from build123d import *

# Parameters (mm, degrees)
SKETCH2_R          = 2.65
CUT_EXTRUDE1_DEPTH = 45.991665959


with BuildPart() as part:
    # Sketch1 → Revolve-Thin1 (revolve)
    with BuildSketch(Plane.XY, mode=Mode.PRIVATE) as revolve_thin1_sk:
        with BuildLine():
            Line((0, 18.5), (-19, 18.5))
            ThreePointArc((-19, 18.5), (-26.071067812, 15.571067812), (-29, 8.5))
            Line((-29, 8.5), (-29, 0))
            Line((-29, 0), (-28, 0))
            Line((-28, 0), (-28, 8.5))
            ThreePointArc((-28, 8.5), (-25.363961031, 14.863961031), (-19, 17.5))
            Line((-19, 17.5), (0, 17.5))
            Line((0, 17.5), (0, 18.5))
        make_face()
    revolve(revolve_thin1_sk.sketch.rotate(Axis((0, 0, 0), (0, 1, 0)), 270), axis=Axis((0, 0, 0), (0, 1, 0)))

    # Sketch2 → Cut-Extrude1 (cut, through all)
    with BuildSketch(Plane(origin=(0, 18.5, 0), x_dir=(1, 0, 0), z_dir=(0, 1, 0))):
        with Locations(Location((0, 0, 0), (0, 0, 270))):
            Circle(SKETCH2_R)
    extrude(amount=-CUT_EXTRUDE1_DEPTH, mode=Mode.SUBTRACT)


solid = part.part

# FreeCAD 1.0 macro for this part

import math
import FreeCAD as App
import Part
import Sketcher

doc = App.newDocument("Part")
params = doc.addObject("Spreadsheet::Sheet", "Params")
for row, (alias, value) in enumerate([
    ("sketch1_radius", "10 mm"),
    ("sketch1_radius2", "9 mm"),
    ("sketch1_width", "19 mm"),
    ("sketch1_height", "8.5 mm"),
    ("revolution_angle", "360 deg"),
    ("sketch2_diameter", "5.3 mm"),
], start=1):
    params.set(f"A{row}", alias)
    params.set(f"B{row}", "=" + value)
    params.setAlias(f"B{row}", alias)

body = doc.addObject("PartDesign::Body", "Body")

sketch1 = body.newObject("Sketcher::SketchObject", "Sketch")
sketch1.AttachmentSupport = (doc.getObject("XY_Plane"), [""])
sketch1.MapMode = "FlatFace"
sketch1.addGeometry(Part.LineSegment(App.Vector(0, 18.5, 0), App.Vector(-19, 18.5, 0)), False)
sketch1.addGeometry(Part.ArcOfCircle(Part.Circle(App.Vector(-19, 8.5, 0), App.Vector(0, 0, 1), 10), math.radians(90), math.radians(180)), False)
sketch1.addGeometry(Part.LineSegment(App.Vector(-29, 8.5, 0), App.Vector(-29, 0, 0)), False)
sketch1.addGeometry(Part.LineSegment(App.Vector(-29, 0, 0), App.Vector(-28, 0, 0)), False)
sketch1.addGeometry(Part.LineSegment(App.Vector(-28, 0, 0), App.Vector(-28, 8.5, 0)), False)
sketch1.addGeometry(Part.ArcOfCircle(Part.Circle(App.Vector(-19, 8.5, 0), App.Vector(0, 0, 1), 9), math.radians(90), math.radians(180)), False)
sketch1.addGeometry(Part.LineSegment(App.Vector(-19, 17.5, 0), App.Vector(0, 17.5, 0)), False)
sketch1.addGeometry(Part.LineSegment(App.Vector(0, 17.5, 0), App.Vector(0, 18.5, 0)), False)
sketch1.addConstraint(Sketcher.Constraint("Tangent", 0, 2, 1, 1))
sketch1.addConstraint(Sketcher.Constraint("Tangent", 1, 2, 2, 1))
sketch1.addConstraint(Sketcher.Constraint("Coincident", 2, 2, 3, 1))
sketch1.addConstraint(Sketcher.Constraint("Coincident", 3, 2, 4, 1))
sketch1.addConstraint(Sketcher.Constraint("Tangent", 4, 2, 5, 2))
sketch1.addConstraint(Sketcher.Constraint("Tangent", 5, 1, 6, 1))
sketch1.addConstraint(Sketcher.Constraint("Coincident", 6, 2, 7, 1))
sketch1.addConstraint(Sketcher.Constraint("Coincident", 7, 2, 0, 1))
sketch1.addConstraint(Sketcher.Constraint("Horizontal", 0))
sketch1.addConstraint(Sketcher.Constraint("Vertical", 2))
sketch1.addConstraint(Sketcher.Constraint("Horizontal", 3))
sketch1.addConstraint(Sketcher.Constraint("Vertical", 4))
sketch1.addConstraint(Sketcher.Constraint("Horizontal", 6))
sketch1.addConstraint(Sketcher.Constraint("Vertical", 7))
sketch1.addConstraint(Sketcher.Constraint("Coincident", 5, 3, 1, 3))
sketch1.addConstraint(Sketcher.Constraint("PointOnObject", 2, 2, -1))
sketch1.addConstraint(Sketcher.Constraint("PointOnObject", 6, 2, -2))
sketch1.addConstraint(Sketcher.Constraint("Radius", 1, 10.0))
sketch1.addConstraint(Sketcher.Constraint("Radius", 5, 9.0))
sketch1.addConstraint(Sketcher.Constraint("DistanceX", 0, 2, 0, 1, 19.0))
sketch1.addConstraint(Sketcher.Constraint("DistanceY", 2, 2, 2, 1, 8.5))
sketch1.setExpression("Constraints[17]", "Params.sketch1_radius")
sketch1.setExpression("Constraints[18]", "Params.sketch1_radius2")
sketch1.setExpression("Constraints[19]", "Params.sketch1_width")
sketch1.setExpression("Constraints[20]", "Params.sketch1_height")
revolution = body.newObject("PartDesign::Revolution", "Revolution")
revolution.Profile = sketch1
revolution.ReferenceAxis = (sketch1, ["V_Axis"])
revolution.setExpression("Angle", "Params.revolution_angle")

sketch2 = body.newObject("Sketcher::SketchObject", "Sketch001")
sketch2.AttachmentSupport = (doc.getObject("XZ_Plane"), [""])
sketch2.MapMode = "FlatFace"
sketch2.AttachmentOffset = App.Placement(App.Vector(0, 0, -18.5), App.Rotation())
sketch2.addGeometry(Part.Circle(App.Vector(0, 0, 0), App.Vector(0, 0, 1), 2.6), False)
sketch2.addConstraint(Sketcher.Constraint("Coincident", 0, 3, -1, 1))
sketch2.addConstraint(Sketcher.Constraint("Diameter", 0, 5.3))
sketch2.setExpression("Constraints[1]", "Params.sketch2_diameter")
pocket1 = body.newObject("PartDesign::Pocket", "Pocket")
pocket1.Profile = sketch2
pocket1.Type = "ThroughAll"
pocket1.Reversed = True

doc.recompute()
